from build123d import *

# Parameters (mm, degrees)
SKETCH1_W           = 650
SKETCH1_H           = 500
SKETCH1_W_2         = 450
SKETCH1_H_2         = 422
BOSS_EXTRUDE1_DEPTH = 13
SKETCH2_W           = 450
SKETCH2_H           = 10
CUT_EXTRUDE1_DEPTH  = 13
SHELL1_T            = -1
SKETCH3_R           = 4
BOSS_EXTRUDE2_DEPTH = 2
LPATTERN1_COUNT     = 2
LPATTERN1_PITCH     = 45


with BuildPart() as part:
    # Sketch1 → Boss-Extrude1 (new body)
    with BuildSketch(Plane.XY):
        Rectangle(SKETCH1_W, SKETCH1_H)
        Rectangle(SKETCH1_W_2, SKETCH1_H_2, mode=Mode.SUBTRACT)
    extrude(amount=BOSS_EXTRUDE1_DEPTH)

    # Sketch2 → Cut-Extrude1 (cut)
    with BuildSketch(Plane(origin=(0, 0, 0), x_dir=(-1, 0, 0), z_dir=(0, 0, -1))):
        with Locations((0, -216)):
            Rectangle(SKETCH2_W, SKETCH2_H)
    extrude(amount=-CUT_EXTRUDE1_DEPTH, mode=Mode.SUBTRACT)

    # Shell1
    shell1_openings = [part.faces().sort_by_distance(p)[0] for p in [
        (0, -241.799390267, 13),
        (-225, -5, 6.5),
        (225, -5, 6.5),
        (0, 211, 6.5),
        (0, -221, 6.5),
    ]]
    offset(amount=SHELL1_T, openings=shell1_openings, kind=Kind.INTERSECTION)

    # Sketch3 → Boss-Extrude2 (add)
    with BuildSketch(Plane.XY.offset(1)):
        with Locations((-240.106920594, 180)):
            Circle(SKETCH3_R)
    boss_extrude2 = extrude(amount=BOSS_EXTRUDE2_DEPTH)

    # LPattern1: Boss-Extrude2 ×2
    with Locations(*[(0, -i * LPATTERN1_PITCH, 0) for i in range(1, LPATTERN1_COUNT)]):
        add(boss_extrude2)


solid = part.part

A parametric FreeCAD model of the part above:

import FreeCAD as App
import Part
import Sketcher

V = App.Vector
Q = App.Units.Quantity


def faces_at(feature, points):
    """Names of the faces that lie closest to the given points."""
    faces = feature.Shape.Faces
    near = lambda p: min(range(len(faces)), key=lambda i: faces[i].distToShape(Part.Vertex(*p))[0])
    return sorted({f"Face{near(p) + 1}" for p in points})


def add_polygon(sketch, points):
    """Adds a closed chain of lines whose ends are joined by coincident constraints."""
    first, n = sketch.GeometryCount, len(points)
    for a, b in zip(points, points[1:] + points[:1]):
        sketch.addGeometry(Part.LineSegment(App.Vector(*a, 0), App.Vector(*b, 0)), False)
    for i in range(n):
        sketch.addConstraint(Sketcher.Constraint("Coincident", first + i, 2, first + (i + 1) % n, 1))

doc = App.newDocument("Part")
params = doc.addObject("Spreadsheet::Sheet", "Params")
for row, (alias, value) in enumerate([
    ("sketch1_width", "650 mm"),
    ("sketch1_width2", "450 mm"),
    ("sketch1_height", "500 mm"),
    ("sketch1_height2", "422 mm"),
    ("pad1_length", "13 mm"),
    ("sketch2_width", "450 mm"),
    ("sketch2_height", "10 mm"),
    ("pocket1_length", "13 mm"),
    ("thickness_wall", "1 mm"),
    ("sketch3_diameter", "8 mm"),
    ("pad2_length", "2 mm"),
    ("linearpattern_pitch", "45 mm"),
], start=1):
    params.set(f"A{row}", alias)
    params.set(f"B{row}", "=" + value)
    params.setAlias(f"B{row}", alias)

body = doc.addObject("PartDesign::Body", "Body")

sketch1 = body.newObject("Sketcher::SketchObject", "Sketch")
sketch1.AttachmentSupport = (doc.getObject("XY_Plane"), [""])
sketch1.MapMode = "FlatFace"
add_polygon(sketch1, [(-325, 250), (-325, -250), (325, -250), (325, 250)])
add_polygon(sketch1, [(225, -211), (-225, -211), (-225, 211), (225, 211)])
sketch1.addConstraint(Sketcher.Constraint("Vertical", 0))
sketch1.addConstraint(Sketcher.Constraint("Horizontal", 1))
sketch1.addConstraint(Sketcher.Constraint("Vertical", 2))
sketch1.addConstraint(Sketcher.Constraint("Horizontal", 3))
sketch1.addConstraint(Sketcher.Constraint("Horizontal", 4))
sketch1.addConstraint(Sketcher.Constraint("Vertical", 5))
sketch1.addConstraint(Sketcher.Constraint("Horizontal", 6))
sketch1.addConstraint(Sketcher.Constraint("Vertical", 7))
sketch1.addConstraint(Sketcher.Constraint("Symmetric", 0, 2, 2, 2, -1, 1))
sketch1.addConstraint(Sketcher.Constraint("Symmetric", 4, 2, 6, 2, -1, 1))
sketch1.addConstraint(Sketcher.Constraint("DistanceX", 1, 1, 1, 2, Q("650 mm")))
sketch1.addConstraint(Sketcher.Constraint("DistanceX", 4, 2, 4, 1, Q("450 mm")))
sketch1.addConstraint(Sketcher.Constraint("DistanceY", 0, 2, 0, 1, Q("500 mm")))
sketch1.addConstraint(Sketcher.Constraint("DistanceY", 5, 1, 5, 2, Q("422 mm")))
sketch1.setExpression("Constraints[18]", "Params.sketch1_width")
sketch1.setExpression("Constraints[19]", "Params.sketch1_width2")
sketch1.setExpression("Constraints[20]", "Params.sketch1_height")
sketch1.setExpression("Constraints[21]", "Params.sketch1_height2")
pad1 = body.newObject("PartDesign::Pad", "Pad")
pad1.Profile = sketch1
pad1.setExpression("Length", "Params.pad1_length")

sketch2 = body.newObject("Sketcher::SketchObject", "Sketch001")
sketch2.AttachmentSupport = (doc.getObject("XY_Plane"), [""])
sketch2.MapMode = "FlatFace"
add_polygon(sketch2, [(225, -211), (225, -221), (-225, -221), (-225, -211)])
sketch2.addConstraint(Sketcher.Constraint("Vertical", 0))
sketch2.addConstraint(Sketcher.Constraint("Horizontal", 1))
sketch2.addConstraint(Sketcher.Constraint("Vertical", 2))
sketch2.addConstraint(Sketcher.Constraint("Horizontal", 3))
sketch2.addConstraint(Sketcher.Constraint("DistanceX", 1, 2, 1, 1, Q("450 mm")))
sketch2.addConstraint(Sketcher.Constraint("DistanceY", 0, 2, 0, 1, Q("10 mm")))
sketch2.addConstraint(Sketcher.Constraint("DistanceX", -1, 1, 0, 2, Q("225 mm")))
sketch2.addConstraint(Sketcher.Constraint("DistanceY", 0, 2, -1, 1, Q("221 mm")))
sketch2.setExpression("Constraints[8]", "Params.sketch2_width")
sketch2.setExpression("Constraints[9]", "Params.sketch2_height")
pocket1 = body.newObject("PartDesign::Pocket", "Pocket")
pocket1.Profile = sketch2
pocket1.setExpression("Length", "Params.pocket1_length")
pocket1.Reversed = True
doc.recompute()

thickness = body.newObject("PartDesign::Thickness", "Thickness")
thickness.Base = (pocket1, faces_at(pocket1, [
    (-260, 0, 13),
    (-225, -5, 6.5),
    (225, -5, 6.5),
    (0, 211, 6.5),
    (0, -221, 6.5),
]))
thickness.setExpression("Value", "Params.thickness_wall")
thickness.Reversed = True
thickness.Join = "Intersection"

sketch3 = body.newObject("Sketcher::SketchObject", "Sketch002")
sketch3.AttachmentSupport = (doc.getObject("XY_Plane"), [""])
sketch3.MapMode = "FlatFace"
sketch3.AttachmentOffset = App.Placement(V(0, 0, 1), App.Rotation())
sketch3.addGeometry(Part.Circle(V(-240.1, 180, 0), V(0, 0, 1), 4), False)
sketch3.addConstraint(Sketcher.Constraint("Diameter", 0, Q("8 mm")))
sketch3.addConstraint(Sketcher.Constraint("DistanceY", -1, 1, 0, 3, Q("180 mm")))
sketch3.addConstraint(Sketcher.Constraint("DistanceX", 0, 3, -1, 1, Q("240.106921 mm")))
sketch3.setExpression("Constraints[0]", "Params.sketch3_diameter")
pad2 = body.newObject("PartDesign::Pad", "Pad001")
pad2.Profile = sketch3
pad2.setExpression("Length", "Params.pad2_length")
doc.recompute()

linearpattern = body.newObject("PartDesign::LinearPattern", "LinearPattern")
linearpattern.Originals = [pad2]
linearpattern.Direction = (doc.getObject("Y_Axis"), [""])
linearpattern.Mode = "offset"
linearpattern.setExpression("Offset", "Params.linearpattern_pitch")
linearpattern.Occurrences = 2
linearpattern.Reversed = True
body.Tip = linearpattern

doc.recompute()
